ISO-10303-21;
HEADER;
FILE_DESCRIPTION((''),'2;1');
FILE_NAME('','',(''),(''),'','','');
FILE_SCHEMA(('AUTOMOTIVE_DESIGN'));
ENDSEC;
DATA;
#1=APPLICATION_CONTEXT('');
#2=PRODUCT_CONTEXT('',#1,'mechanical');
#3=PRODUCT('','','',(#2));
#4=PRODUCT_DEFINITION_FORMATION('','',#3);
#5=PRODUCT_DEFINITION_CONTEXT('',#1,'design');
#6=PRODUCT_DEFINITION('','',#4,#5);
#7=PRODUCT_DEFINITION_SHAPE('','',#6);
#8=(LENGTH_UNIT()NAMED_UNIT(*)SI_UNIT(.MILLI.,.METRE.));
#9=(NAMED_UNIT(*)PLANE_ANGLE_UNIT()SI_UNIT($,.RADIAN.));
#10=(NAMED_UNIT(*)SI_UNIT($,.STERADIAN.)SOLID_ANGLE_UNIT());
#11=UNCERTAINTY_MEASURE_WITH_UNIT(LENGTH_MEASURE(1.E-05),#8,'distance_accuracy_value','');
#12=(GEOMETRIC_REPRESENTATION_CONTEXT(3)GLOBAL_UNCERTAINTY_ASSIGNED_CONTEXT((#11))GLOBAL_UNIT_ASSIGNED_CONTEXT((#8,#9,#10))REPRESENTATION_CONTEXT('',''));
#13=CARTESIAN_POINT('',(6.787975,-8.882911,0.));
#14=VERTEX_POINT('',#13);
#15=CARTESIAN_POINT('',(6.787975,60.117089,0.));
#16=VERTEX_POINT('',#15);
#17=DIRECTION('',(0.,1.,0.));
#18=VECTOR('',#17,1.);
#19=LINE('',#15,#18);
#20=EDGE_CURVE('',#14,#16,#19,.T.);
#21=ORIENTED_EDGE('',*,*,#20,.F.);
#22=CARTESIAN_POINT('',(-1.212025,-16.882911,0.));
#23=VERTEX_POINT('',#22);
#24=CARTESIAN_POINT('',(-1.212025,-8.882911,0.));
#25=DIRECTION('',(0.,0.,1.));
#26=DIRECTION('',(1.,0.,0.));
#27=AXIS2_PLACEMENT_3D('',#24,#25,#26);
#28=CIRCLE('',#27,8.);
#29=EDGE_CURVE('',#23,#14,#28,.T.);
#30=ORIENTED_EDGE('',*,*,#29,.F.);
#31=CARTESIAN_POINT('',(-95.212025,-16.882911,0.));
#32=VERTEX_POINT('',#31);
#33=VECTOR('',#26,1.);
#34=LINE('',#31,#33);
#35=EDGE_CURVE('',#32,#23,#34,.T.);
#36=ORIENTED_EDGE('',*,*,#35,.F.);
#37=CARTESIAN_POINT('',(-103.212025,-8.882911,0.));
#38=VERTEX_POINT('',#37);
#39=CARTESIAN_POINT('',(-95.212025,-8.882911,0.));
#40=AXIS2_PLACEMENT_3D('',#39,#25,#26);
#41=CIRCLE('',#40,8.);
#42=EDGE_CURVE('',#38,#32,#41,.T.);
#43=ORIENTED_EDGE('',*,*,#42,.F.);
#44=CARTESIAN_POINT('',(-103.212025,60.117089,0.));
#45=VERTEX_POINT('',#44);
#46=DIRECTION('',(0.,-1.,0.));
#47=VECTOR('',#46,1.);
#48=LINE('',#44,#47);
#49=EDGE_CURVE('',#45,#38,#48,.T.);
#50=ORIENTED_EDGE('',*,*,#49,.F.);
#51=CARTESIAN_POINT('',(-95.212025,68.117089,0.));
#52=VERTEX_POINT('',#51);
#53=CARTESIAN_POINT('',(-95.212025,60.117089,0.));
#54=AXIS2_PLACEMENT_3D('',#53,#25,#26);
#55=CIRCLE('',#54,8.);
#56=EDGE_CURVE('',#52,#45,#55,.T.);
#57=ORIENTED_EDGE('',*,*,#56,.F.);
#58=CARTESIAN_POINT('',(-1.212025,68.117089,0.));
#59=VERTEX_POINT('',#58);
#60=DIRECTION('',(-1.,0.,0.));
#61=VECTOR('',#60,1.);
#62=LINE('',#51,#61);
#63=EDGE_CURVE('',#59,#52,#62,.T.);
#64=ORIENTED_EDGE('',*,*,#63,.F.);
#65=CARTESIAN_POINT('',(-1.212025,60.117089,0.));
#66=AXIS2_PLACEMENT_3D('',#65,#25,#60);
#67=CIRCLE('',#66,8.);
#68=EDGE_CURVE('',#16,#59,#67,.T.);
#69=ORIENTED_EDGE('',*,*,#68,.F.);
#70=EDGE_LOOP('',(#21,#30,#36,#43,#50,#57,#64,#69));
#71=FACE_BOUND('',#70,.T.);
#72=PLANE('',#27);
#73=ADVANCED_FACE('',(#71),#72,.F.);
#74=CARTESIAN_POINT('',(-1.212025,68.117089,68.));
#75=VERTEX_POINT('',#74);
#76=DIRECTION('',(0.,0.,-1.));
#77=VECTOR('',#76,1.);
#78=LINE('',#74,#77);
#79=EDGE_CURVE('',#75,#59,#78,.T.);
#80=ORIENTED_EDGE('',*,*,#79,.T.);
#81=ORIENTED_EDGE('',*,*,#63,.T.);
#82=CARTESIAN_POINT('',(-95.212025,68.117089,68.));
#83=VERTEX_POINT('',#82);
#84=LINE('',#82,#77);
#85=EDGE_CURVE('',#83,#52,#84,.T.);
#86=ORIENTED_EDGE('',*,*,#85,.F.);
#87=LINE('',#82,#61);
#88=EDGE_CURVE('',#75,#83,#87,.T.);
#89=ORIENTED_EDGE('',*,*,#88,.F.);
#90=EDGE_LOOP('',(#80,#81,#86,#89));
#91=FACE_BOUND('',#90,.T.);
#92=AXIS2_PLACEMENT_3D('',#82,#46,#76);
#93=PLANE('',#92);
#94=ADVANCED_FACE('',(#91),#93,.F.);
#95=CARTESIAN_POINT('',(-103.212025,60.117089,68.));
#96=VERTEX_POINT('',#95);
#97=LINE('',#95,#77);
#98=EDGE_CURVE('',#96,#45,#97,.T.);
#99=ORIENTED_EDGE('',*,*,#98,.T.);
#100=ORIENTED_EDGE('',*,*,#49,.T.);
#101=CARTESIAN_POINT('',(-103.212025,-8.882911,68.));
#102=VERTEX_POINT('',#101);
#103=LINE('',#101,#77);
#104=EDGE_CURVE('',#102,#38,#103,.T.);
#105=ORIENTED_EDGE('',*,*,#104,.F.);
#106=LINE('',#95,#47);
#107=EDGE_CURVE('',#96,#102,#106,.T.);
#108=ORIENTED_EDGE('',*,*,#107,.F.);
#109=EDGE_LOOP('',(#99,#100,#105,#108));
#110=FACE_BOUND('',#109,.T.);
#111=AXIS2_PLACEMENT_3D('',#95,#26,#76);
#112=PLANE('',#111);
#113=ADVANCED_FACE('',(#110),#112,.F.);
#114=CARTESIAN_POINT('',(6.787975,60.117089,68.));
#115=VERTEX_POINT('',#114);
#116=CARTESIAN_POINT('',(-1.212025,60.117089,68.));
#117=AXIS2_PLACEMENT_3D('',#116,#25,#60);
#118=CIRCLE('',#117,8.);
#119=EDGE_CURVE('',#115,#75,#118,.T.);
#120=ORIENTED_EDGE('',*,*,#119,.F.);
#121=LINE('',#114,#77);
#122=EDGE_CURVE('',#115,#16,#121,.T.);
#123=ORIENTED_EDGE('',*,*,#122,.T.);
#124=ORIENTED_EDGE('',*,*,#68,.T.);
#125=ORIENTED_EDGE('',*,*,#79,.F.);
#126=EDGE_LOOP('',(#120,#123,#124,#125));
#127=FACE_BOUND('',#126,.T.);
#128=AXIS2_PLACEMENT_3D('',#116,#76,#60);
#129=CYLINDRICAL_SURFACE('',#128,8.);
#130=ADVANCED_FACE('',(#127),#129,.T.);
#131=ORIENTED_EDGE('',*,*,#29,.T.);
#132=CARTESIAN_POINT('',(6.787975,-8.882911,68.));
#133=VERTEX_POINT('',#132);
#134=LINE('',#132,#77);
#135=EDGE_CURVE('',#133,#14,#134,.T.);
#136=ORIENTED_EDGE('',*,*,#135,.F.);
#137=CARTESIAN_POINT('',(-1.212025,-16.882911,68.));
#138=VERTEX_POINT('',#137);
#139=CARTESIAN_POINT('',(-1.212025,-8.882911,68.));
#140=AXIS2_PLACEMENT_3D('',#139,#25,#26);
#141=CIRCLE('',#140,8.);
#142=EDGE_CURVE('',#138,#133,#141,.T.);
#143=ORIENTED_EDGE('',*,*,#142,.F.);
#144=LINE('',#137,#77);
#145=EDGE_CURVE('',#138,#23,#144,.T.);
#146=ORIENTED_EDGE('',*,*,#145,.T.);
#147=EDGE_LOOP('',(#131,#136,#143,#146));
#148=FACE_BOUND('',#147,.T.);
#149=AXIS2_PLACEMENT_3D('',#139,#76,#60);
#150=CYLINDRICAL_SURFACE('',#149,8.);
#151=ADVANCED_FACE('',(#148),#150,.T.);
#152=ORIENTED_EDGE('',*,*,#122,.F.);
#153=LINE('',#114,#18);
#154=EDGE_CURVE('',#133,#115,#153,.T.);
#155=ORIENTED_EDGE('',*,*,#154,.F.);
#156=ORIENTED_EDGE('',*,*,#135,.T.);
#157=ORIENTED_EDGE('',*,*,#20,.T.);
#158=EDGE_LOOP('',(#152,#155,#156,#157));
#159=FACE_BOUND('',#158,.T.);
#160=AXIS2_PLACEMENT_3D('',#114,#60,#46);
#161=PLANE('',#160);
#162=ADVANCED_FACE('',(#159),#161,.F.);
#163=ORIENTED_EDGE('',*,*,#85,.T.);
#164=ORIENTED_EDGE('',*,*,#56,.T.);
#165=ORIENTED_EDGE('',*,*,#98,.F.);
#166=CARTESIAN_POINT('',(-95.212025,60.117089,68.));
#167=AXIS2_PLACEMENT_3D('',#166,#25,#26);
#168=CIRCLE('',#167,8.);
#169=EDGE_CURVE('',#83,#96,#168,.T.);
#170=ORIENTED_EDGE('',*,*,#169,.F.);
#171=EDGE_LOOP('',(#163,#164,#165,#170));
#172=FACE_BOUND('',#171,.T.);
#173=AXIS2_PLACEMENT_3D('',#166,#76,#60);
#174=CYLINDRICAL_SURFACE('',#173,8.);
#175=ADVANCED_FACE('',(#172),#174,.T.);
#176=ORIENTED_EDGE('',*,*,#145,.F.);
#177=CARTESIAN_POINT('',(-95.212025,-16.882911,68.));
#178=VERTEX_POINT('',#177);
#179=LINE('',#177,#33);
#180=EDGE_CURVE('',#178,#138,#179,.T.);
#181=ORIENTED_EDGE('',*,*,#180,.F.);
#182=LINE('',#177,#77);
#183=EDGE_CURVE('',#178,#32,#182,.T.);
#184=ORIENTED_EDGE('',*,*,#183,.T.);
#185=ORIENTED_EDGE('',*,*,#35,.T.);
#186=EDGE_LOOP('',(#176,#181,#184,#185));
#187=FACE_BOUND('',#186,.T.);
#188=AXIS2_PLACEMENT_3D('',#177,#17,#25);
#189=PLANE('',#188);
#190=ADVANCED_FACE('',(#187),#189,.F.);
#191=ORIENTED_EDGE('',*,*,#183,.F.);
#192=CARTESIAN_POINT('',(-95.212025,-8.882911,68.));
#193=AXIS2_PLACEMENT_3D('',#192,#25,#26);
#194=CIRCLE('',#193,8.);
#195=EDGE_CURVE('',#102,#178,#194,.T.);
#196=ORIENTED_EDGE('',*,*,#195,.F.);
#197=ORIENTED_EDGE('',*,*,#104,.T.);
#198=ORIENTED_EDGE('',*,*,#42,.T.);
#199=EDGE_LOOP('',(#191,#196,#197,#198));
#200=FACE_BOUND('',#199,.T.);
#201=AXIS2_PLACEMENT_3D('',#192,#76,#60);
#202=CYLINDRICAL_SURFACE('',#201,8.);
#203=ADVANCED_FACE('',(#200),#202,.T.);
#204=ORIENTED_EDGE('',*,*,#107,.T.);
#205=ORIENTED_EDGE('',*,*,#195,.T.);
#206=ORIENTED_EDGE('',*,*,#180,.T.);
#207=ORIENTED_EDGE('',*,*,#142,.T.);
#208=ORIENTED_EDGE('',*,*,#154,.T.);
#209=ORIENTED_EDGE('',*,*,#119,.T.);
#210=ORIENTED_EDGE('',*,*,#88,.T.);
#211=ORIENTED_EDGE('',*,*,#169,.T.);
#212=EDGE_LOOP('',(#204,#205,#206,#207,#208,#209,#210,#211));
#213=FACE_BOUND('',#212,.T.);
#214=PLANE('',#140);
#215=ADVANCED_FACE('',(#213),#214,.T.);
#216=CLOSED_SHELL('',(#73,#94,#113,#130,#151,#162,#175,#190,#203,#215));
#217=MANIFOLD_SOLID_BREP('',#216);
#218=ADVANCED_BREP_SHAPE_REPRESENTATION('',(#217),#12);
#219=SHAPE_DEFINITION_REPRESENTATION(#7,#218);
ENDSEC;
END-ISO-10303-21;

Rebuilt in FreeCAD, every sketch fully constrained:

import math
import FreeCAD as App
import Part
import Sketcher

doc = App.newDocument("Part")
body = doc.addObject("PartDesign::Body", "Body")

# Sketch on XY plane
sketch1 = doc.addObject("Sketcher::SketchObject", "Sketch")
body.addObject(sketch1)
sketch1.AttachmentSupport = (doc.XY_Plane, [""])
sketch1.MapMode = "FlatFace"
sketch1.addGeometry([
    Part.LineSegment(App.Vector(-1.212025, 68.117089, 0), App.Vector(-95.212025, 68.117089, 0)),  # 0
    Part.ArcOfCircle(Part.Circle(App.Vector(-95.212025, 60.117089, 0), App.Vector(0, 0, 1), 8), math.radians(90), math.radians(180)),  # 1
    Part.LineSegment(App.Vector(-103.212025, 60.117089, 0), App.Vector(-103.212025, -8.882911, 0)),  # 2
    Part.ArcOfCircle(Part.Circle(App.Vector(-95.212025, -8.882911, 0), App.Vector(0, 0, 1), 8), math.radians(180), math.radians(270)),  # 3
    Part.LineSegment(App.Vector(-95.212025, -16.882911, 0), App.Vector(-1.212025, -16.882911, 0)),  # 4
    Part.ArcOfCircle(Part.Circle(App.Vector(-1.212025, -8.882911, 0), App.Vector(0, 0, 1), 8), math.radians(-90), math.radians(0)),  # 5
    Part.LineSegment(App.Vector(6.787975, -8.882911, 0), App.Vector(6.787975, 60.117089, 0)),  # 6
    Part.ArcOfCircle(Part.Circle(App.Vector(-1.212025, 60.117089, 0), App.Vector(0, 0, 1), 8), math.radians(0), math.radians(90)),  # 7
], False)
sketch1.addConstraint([
    Sketcher.Constraint("Tangent", 0, 2, 1, 1),
    Sketcher.Constraint("Tangent", 1, 2, 2, 1),
    Sketcher.Constraint("Tangent", 2, 2, 3, 1),
    Sketcher.Constraint("Tangent", 3, 2, 4, 1),
    Sketcher.Constraint("Tangent", 4, 2, 5, 1),
    Sketcher.Constraint("Tangent", 5, 2, 6, 1),
    Sketcher.Constraint("Tangent", 6, 2, 7, 1),
    Sketcher.Constraint("Tangent", 7, 2, 0, 1),
    Sketcher.Constraint("Horizontal", 0),
    Sketcher.Constraint("Vertical", 2),
    Sketcher.Constraint("Horizontal", 4),
    Sketcher.Constraint("Vertical", 6),
    Sketcher.Constraint("Equal", 1, 3),
    Sketcher.Constraint("Equal", 3, 5),
    Sketcher.Constraint("Equal", 5, 7),
    Sketcher.Constraint("Radius", 1, 8.0),
    Sketcher.Constraint("DistanceX", 0, 2, 0, 1, 94.0),
    Sketcher.Constraint("DistanceY", 2, 2, 2, 1, 69.0),
    Sketcher.Constraint("DistanceY", -1, 1, 1, 3, 60.117089),
    Sketcher.Constraint("DistanceX", 1, 3, -1, 1, 95.212025),
])
pad1 = doc.addObject("PartDesign::Pad", "Pad")
body.addObject(pad1)
pad1.Profile = sketch1
pad1.Length = 68

doc.recompute()
